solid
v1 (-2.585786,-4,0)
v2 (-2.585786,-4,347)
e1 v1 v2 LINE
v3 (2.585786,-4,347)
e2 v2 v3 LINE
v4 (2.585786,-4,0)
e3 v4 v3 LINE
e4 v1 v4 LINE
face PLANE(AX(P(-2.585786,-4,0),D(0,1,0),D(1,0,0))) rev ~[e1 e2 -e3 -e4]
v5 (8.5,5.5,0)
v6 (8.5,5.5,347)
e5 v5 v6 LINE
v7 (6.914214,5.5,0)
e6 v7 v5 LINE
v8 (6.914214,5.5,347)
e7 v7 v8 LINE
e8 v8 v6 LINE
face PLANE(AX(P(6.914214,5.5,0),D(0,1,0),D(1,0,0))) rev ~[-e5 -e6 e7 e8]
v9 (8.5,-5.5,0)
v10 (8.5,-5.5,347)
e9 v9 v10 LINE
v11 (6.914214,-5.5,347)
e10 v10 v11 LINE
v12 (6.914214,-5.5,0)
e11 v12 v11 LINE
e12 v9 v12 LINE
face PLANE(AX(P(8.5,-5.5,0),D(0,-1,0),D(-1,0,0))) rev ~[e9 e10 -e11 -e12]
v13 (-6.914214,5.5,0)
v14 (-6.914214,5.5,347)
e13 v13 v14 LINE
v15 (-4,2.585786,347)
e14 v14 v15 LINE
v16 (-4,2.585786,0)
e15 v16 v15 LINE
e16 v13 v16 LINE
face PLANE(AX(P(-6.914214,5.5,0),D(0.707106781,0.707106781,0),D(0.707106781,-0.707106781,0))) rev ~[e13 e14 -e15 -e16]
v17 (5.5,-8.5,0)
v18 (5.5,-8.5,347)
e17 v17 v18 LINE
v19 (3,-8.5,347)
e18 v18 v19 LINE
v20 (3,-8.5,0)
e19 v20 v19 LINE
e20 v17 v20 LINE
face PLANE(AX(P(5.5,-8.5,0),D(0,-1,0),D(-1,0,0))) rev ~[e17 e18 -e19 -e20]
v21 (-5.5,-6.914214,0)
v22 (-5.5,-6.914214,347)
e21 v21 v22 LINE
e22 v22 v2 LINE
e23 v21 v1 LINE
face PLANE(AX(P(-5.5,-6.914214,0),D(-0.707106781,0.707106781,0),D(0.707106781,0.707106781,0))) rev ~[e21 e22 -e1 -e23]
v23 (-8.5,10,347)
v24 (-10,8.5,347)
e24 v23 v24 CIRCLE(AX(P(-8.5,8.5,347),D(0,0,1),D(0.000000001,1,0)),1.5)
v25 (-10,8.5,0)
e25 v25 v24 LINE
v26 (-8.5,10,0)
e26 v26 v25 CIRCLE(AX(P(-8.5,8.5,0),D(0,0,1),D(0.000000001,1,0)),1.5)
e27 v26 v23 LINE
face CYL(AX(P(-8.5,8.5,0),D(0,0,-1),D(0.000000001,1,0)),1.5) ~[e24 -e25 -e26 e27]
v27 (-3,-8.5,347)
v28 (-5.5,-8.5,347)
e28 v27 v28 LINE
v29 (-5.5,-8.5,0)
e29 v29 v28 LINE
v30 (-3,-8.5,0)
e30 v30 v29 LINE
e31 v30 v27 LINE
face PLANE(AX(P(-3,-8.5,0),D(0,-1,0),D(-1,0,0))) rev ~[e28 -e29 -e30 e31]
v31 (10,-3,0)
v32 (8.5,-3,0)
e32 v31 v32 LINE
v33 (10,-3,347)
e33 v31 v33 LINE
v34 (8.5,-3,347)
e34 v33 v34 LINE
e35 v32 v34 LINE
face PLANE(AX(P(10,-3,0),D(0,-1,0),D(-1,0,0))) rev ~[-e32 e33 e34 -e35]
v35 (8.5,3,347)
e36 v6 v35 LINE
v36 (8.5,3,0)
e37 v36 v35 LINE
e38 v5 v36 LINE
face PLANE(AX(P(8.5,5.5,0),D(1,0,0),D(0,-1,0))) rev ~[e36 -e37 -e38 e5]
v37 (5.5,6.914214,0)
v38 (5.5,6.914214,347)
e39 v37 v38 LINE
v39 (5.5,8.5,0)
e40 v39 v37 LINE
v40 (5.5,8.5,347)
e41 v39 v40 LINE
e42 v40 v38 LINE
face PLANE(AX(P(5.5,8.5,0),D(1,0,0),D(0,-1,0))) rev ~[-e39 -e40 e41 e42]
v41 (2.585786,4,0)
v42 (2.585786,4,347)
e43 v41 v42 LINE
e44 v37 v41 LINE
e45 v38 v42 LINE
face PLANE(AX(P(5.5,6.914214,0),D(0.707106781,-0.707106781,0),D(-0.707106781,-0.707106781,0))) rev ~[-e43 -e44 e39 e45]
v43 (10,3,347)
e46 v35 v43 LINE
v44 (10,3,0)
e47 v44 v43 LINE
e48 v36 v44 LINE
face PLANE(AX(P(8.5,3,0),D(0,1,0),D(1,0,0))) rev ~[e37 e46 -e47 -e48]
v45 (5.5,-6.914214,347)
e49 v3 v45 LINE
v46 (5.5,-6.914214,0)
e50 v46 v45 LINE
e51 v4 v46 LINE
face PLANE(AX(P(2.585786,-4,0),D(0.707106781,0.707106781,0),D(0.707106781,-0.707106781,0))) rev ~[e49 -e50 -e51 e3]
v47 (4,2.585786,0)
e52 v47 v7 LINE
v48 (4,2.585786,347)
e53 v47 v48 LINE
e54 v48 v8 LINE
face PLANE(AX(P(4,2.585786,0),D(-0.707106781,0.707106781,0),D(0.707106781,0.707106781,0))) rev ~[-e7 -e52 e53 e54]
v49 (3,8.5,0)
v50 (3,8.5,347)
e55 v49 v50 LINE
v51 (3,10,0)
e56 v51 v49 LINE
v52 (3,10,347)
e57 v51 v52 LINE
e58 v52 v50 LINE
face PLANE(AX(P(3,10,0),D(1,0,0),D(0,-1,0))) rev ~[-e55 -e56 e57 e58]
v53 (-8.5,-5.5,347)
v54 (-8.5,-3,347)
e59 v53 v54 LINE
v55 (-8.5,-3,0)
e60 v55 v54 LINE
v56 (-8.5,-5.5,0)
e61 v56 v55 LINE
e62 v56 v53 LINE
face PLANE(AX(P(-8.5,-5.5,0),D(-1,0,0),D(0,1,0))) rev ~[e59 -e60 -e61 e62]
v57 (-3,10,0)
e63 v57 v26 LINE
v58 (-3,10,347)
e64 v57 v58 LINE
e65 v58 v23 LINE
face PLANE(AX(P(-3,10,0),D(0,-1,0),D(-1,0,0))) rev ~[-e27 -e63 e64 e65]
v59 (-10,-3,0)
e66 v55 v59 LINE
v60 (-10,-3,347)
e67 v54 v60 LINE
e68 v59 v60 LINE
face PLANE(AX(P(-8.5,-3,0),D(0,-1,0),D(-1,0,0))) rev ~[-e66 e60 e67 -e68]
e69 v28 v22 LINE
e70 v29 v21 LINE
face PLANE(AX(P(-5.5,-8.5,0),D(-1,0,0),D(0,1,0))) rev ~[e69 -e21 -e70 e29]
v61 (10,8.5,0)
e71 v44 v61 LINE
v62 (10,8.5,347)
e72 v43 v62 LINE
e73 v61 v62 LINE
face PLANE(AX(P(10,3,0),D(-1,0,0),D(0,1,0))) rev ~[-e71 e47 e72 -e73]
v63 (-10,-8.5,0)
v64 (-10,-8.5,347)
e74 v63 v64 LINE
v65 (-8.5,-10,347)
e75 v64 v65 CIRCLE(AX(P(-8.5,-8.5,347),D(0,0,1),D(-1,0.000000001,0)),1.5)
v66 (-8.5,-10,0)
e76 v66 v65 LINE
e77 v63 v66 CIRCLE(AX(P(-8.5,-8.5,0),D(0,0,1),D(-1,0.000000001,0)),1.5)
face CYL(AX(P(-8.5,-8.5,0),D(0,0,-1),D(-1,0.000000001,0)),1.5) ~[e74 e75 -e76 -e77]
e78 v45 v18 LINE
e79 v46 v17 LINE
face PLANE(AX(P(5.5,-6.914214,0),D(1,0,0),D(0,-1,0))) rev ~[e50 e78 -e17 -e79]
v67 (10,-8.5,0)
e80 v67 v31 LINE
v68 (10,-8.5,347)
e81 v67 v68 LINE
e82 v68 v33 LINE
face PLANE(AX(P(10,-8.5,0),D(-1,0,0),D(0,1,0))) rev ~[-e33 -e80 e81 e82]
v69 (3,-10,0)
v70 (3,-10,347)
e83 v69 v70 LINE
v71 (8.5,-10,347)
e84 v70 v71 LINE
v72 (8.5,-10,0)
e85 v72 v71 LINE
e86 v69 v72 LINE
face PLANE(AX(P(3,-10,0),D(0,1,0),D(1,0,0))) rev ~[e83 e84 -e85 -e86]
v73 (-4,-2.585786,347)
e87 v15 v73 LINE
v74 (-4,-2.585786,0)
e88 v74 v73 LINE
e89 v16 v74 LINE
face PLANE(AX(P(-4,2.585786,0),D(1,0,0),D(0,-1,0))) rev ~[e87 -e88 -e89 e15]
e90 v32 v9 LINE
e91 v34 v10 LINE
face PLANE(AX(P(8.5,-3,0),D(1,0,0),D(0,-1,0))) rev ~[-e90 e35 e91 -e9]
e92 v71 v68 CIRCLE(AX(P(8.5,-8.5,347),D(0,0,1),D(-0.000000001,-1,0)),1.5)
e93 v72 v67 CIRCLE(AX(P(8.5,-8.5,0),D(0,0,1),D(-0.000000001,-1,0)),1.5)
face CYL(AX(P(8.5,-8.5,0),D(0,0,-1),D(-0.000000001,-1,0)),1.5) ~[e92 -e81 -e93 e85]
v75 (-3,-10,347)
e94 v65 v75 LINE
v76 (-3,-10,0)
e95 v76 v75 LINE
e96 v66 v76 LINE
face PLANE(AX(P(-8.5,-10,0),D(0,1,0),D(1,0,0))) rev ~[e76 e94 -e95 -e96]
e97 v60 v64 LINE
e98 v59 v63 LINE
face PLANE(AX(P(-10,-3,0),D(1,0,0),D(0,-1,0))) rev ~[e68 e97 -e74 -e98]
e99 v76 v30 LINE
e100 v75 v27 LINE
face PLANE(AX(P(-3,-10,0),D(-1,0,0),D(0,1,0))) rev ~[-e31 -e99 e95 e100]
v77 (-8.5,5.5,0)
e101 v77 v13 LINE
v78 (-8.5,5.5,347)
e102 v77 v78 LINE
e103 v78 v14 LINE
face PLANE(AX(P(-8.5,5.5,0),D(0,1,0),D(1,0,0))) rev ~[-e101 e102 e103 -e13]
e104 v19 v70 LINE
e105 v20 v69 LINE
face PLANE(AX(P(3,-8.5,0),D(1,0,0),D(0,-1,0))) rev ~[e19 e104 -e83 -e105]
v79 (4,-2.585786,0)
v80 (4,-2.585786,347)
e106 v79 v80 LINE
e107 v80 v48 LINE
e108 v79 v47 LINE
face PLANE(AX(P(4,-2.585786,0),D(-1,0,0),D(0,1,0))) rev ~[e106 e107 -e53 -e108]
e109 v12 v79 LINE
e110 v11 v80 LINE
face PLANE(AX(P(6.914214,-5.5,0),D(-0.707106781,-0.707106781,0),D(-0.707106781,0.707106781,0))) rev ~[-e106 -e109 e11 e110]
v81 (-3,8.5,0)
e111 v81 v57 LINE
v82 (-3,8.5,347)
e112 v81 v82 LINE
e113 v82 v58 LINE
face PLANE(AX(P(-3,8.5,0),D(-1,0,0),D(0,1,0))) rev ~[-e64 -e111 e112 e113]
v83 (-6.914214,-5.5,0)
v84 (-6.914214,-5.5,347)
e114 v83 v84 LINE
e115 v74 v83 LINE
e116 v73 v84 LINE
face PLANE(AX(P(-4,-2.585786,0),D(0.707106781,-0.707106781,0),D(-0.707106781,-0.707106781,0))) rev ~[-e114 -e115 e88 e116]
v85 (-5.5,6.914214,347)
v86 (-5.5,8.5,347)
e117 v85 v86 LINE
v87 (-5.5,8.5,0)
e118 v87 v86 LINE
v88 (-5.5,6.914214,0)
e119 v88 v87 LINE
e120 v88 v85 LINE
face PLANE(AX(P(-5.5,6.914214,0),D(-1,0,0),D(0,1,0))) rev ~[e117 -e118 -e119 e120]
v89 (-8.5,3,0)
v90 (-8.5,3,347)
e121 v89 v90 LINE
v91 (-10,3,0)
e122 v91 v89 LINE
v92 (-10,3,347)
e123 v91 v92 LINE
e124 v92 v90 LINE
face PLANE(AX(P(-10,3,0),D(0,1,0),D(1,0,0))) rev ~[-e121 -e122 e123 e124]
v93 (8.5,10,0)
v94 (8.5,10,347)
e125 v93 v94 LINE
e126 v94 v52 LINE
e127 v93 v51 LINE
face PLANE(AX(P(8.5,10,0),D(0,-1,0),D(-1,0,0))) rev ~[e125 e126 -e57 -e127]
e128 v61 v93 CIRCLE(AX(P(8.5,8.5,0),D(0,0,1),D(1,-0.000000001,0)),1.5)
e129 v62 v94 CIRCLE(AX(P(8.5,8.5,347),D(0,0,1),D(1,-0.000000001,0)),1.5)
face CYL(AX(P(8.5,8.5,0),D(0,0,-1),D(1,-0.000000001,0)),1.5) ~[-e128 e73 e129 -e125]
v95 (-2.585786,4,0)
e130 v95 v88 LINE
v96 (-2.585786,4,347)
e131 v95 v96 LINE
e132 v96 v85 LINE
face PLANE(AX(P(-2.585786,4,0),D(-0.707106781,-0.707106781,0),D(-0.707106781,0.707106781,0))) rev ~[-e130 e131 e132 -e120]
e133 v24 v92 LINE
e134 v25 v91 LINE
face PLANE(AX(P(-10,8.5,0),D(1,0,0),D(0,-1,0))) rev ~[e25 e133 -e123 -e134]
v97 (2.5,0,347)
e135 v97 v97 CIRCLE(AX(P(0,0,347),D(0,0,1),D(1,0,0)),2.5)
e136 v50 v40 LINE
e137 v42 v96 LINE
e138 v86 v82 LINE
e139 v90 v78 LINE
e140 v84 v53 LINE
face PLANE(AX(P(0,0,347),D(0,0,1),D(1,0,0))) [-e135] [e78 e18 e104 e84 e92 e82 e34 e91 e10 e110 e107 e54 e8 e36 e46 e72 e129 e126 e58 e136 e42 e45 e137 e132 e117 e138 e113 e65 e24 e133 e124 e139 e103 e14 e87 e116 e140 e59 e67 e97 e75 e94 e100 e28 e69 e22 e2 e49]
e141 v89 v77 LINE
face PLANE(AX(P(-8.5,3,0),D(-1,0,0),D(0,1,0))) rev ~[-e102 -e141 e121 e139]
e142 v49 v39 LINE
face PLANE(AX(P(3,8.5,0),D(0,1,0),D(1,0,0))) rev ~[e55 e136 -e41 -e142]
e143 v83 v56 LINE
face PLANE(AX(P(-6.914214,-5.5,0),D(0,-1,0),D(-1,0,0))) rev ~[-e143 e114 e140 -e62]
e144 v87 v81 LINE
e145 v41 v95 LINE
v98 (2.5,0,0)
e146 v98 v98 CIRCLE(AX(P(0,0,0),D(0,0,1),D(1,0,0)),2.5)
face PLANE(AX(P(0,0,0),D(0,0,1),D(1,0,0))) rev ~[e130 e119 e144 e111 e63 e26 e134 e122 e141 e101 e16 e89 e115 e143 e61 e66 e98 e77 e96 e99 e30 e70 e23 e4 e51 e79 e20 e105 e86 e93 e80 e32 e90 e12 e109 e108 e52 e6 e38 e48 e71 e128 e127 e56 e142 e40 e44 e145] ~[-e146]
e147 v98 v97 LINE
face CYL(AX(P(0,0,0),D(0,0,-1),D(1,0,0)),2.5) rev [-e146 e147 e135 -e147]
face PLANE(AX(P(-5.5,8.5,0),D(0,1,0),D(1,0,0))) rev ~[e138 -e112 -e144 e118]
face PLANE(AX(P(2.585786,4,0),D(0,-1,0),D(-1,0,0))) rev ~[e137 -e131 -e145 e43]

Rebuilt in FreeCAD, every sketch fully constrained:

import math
import FreeCAD as App
import Part
import Sketcher

V = App.Vector

doc = App.newDocument("Part")
params = doc.addObject("Spreadsheet::Sheet", "Params")
for row, (alias, value) in enumerate([
    ("sketch1_diameter", "5 mm"),
    ("sketch1_radius", "1.5 mm"),
    ("sketch1_width", "2.5 mm"),
    ("sketch1_width2", "5.5 mm"),
    ("pad1_length", "347 mm"),
], start=1):
    params.set(f"A{row}", alias)
    params.set(f"B{row}", "=" + value)
    params.setAlias(f"B{row}", alias)

body = doc.addObject("PartDesign::Body", "Body")

# Sketch on XY plane
sketch1 = doc.addObject("Sketcher::SketchObject", "Sketch")
body.addObject(sketch1)
sketch1.AttachmentSupport = (doc.XY_Plane, [""])
sketch1.MapMode = "FlatFace"
sketch1.addGeometry([
    Part.LineSegment(V(-2.585786, 4, 0), V(-5.5, 6.914214, 0)),  # 0
    Part.LineSegment(V(-5.5, 6.914214, 0), V(-5.5, 8.5, 0)),  # 1
    Part.LineSegment(V(-5.5, 8.5, 0), V(-3, 8.5, 0)),  # 2
    Part.LineSegment(V(-3, 8.5, 0), V(-3, 10, 0)),  # 3
    Part.LineSegment(V(-3, 10, 0), V(-8.5, 10, 0)),  # 4
    Part.ArcOfCircle(Part.Circle(V(-8.5, 8.5, 0), V(0, 0, 1), 1.5), math.radians(90), math.radians(180)),  # 5
    Part.LineSegment(V(-10, 8.5, 0), V(-10, 3, 0)),  # 6
    Part.LineSegment(V(-10, 3, 0), V(-8.5, 3, 0)),  # 7
    Part.LineSegment(V(-8.5, 3, 0), V(-8.5, 5.5, 0)),  # 8
    Part.LineSegment(V(-8.5, 5.5, 0), V(-6.914214, 5.5, 0)),  # 9
    Part.LineSegment(V(-6.914214, 5.5, 0), V(-4, 2.585786, 0)),  # 10
    Part.LineSegment(V(-4, 2.585786, 0), V(-4, -2.585786, 0)),  # 11
    Part.LineSegment(V(-4, -2.585786, 0), V(-6.914214, -5.5, 0)),  # 12
    Part.LineSegment(V(-6.914214, -5.5, 0), V(-8.5, -5.5, 0)),  # 13
    Part.LineSegment(V(-8.5, -5.5, 0), V(-8.5, -3, 0)),  # 14
    Part.LineSegment(V(-8.5, -3, 0), V(-10, -3, 0)),  # 15
    Part.LineSegment(V(-10, -3, 0), V(-10, -8.5, 0)),  # 16
    Part.ArcOfCircle(Part.Circle(V(-8.5, -8.5, 0), V(0, 0, 1), 1.5), math.radians(180), math.radians(270)),  # 17
    Part.LineSegment(V(-8.5, -10, 0), V(-3, -10, 0)),  # 18
    Part.LineSegment(V(-3, -10, 0), V(-3, -8.5, 0)),  # 19
    Part.LineSegment(V(-3, -8.5, 0), V(-5.5, -8.5, 0)),  # 20
    Part.LineSegment(V(-5.5, -8.5, 0), V(-5.5, -6.914214, 0)),  # 21
    Part.LineSegment(V(-5.5, -6.914214, 0), V(-2.585786, -4, 0)),  # 22
    Part.LineSegment(V(-2.585786, -4, 0), V(2.585786, -4, 0)),  # 23
    Part.LineSegment(V(2.585786, -4, 0), V(5.5, -6.914214, 0)),  # 24
    Part.LineSegment(V(5.5, -6.914214, 0), V(5.5, -8.5, 0)),  # 25
    Part.LineSegment(V(5.5, -8.5, 0), V(3, -8.5, 0)),  # 26
    Part.LineSegment(V(3, -8.5, 0), V(3, -10, 0)),  # 27
    Part.LineSegment(V(3, -10, 0), V(8.5, -10, 0)),  # 28
    Part.ArcOfCircle(Part.Circle(V(8.5, -8.5, 0), V(0, 0, 1), 1.5), math.radians(-90), math.radians(0)),  # 29
    Part.LineSegment(V(10, -8.5, 0), V(10, -3, 0)),  # 30
    Part.LineSegment(V(10, -3, 0), V(8.5, -3, 0)),  # 31
    Part.LineSegment(V(8.5, -3, 0), V(8.5, -5.5, 0)),  # 32
    Part.LineSegment(V(8.5, -5.5, 0), V(6.914214, -5.5, 0)),  # 33
    Part.LineSegment(V(6.914214, -5.5, 0), V(4, -2.585786, 0)),  # 34
    Part.LineSegment(V(4, -2.585786, 0), V(4, 2.585786, 0)),  # 35
    Part.LineSegment(V(4, 2.585786, 0), V(6.914214, 5.5, 0)),  # 36
    Part.LineSegment(V(6.914214, 5.5, 0), V(8.5, 5.5, 0)),  # 37
    Part.LineSegment(V(8.5, 5.5, 0), V(8.5, 3, 0)),  # 38
    Part.LineSegment(V(8.5, 3, 0), V(10, 3, 0)),  # 39
    Part.LineSegment(V(10, 3, 0), V(10, 8.5, 0)),  # 40
    Part.ArcOfCircle(Part.Circle(V(8.5, 8.5, 0), V(0, 0, 1), 1.5), math.radians(0), math.radians(90)),  # 41
    Part.LineSegment(V(8.5, 10, 0), V(3, 10, 0)),  # 42
    Part.LineSegment(V(3, 10, 0), V(3, 8.5, 0)),  # 43
    Part.LineSegment(V(3, 8.5, 0), V(5.5, 8.5, 0)),  # 44
    Part.LineSegment(V(5.5, 8.5, 0), V(5.5, 6.914214, 0)),  # 45
    Part.LineSegment(V(5.5, 6.914214, 0), V(2.585786, 4, 0)),  # 46
    Part.LineSegment(V(2.585786, 4, 0), V(-2.585786, 4, 0)),  # 47
    Part.Circle(V(0, 0, 0), V(0, 0, 1), 2.5),  # 48
], False)
sketch1.addConstraint([
    Sketcher.Constraint("Coincident", 0, 2, 1, 1),
    Sketcher.Constraint("Coincident", 1, 2, 2, 1),
    Sketcher.Constraint("Coincident", 2, 2, 3, 1),
    Sketcher.Constraint("Coincident", 3, 2, 4, 1),
    Sketcher.Constraint("Tangent", 4, 2, 5, 1),
    Sketcher.Constraint("Tangent", 5, 2, 6, 1),
    Sketcher.Constraint("Coincident", 6, 2, 7, 1),
    Sketcher.Constraint("Coincident", 7, 2, 8, 1),
    Sketcher.Constraint("Coincident", 8, 2, 9, 1),
    Sketcher.Constraint("Coincident", 9, 2, 10, 1),
    Sketcher.Constraint("Coincident", 10, 2, 11, 1),
    Sketcher.Constraint("Coincident", 11, 2, 12, 1),
    Sketcher.Constraint("Coincident", 12, 2, 13, 1),
    Sketcher.Constraint("Coincident", 13, 2, 14, 1),
    Sketcher.Constraint("Coincident", 14, 2, 15, 1),
    Sketcher.Constraint("Coincident", 15, 2, 16, 1),
    Sketcher.Constraint("Tangent", 16, 2, 17, 1),
    Sketcher.Constraint("Tangent", 17, 2, 18, 1),
    Sketcher.Constraint("Coincident", 18, 2, 19, 1),
    Sketcher.Constraint("Coincident", 19, 2, 20, 1),
    Sketcher.Constraint("Coincident", 20, 2, 21, 1),
    Sketcher.Constraint("Coincident", 21, 2, 22, 1),
    Sketcher.Constraint("Coincident", 22, 2, 23, 1),
    Sketcher.Constraint("Coincident", 23, 2, 24, 1),
    Sketcher.Constraint("Coincident", 24, 2, 25, 1),
    Sketcher.Constraint("Coincident", 25, 2, 26, 1),
    Sketcher.Constraint("Coincident", 26, 2, 27, 1),
    Sketcher.Constraint("Coincident", 27, 2, 28, 1),
    Sketcher.Constraint("Tangent", 28, 2, 29, 1),
    Sketcher.Constraint("Tangent", 29, 2, 30, 1),
    Sketcher.Constraint("Coincident", 30, 2, 31, 1),
    Sketcher.Constraint("Coincident", 31, 2, 32, 1),
    Sketcher.Constraint("Coincident", 32, 2, 33, 1),
    Sketcher.Constraint("Coincident", 33, 2, 34, 1),
    Sketcher.Constraint("Coincident", 34, 2, 35, 1),
    Sketcher.Constraint("Coincident", 35, 2, 36, 1),
    Sketcher.Constraint("Coincident", 36, 2, 37, 1),
    Sketcher.Constraint("Coincident", 37, 2, 38, 1),
    Sketcher.Constraint("Coincident", 38, 2, 39, 1),
    Sketcher.Constraint("Coincident", 39, 2, 40, 1),
    Sketcher.Constraint("Tangent", 40, 2, 41, 1),
    Sketcher.Constraint("Tangent", 41, 2, 42, 1),
    Sketcher.Constraint("Coincident", 42, 2, 43, 1),
    Sketcher.Constraint("Coincident", 43, 2, 44, 1),
    Sketcher.Constraint("Coincident", 44, 2, 45, 1),
    Sketcher.Constraint("Coincident", 45, 2, 46, 1),
    Sketcher.Constraint("Coincident", 46, 2, 47, 1),
    Sketcher.Constraint("Coincident", 47, 2, 0, 1),
    Sketcher.Constraint("Vertical", 1),
    Sketcher.Constraint("Horizontal", 2),
    Sketcher.Constraint("Vertical", 3),
    Sketcher.Constraint("Horizontal", 4),
    Sketcher.Constraint("Vertical", 6),
    Sketcher.Constraint("Horizontal", 7),
    Sketcher.Constraint("Vertical", 8),
    Sketcher.Constraint("Horizontal", 9),
    Sketcher.Constraint("Vertical", 11),
    Sketcher.Constraint("Horizontal", 13),
    Sketcher.Constraint("Vertical", 14),
    Sketcher.Constraint("Horizontal", 15),
    Sketcher.Constraint("Vertical", 16),
    Sketcher.Constraint("Horizontal", 18),
    Sketcher.Constraint("Vertical", 19),
    Sketcher.Constraint("Horizontal", 20),
    Sketcher.Constraint("Vertical", 21),
    Sketcher.Constraint("Horizontal", 23),
    Sketcher.Constraint("Vertical", 25),
    Sketcher.Constraint("Horizontal", 26),
    Sketcher.Constraint("Vertical", 27),
    Sketcher.Constraint("Horizontal", 28),
    Sketcher.Constraint("Vertical", 30),
    Sketcher.Constraint("Horizontal", 31),
    Sketcher.Constraint("Vertical", 32),
    Sketcher.Constraint("Horizontal", 33),
    Sketcher.Constraint("Vertical", 35),
    Sketcher.Constraint("Horizontal", 37),
    Sketcher.Constraint("Vertical", 38),
    Sketcher.Constraint("Horizontal", 39),
    Sketcher.Constraint("Vertical", 40),
    Sketcher.Constraint("Horizontal", 42),
    Sketcher.Constraint("Vertical", 43),
    Sketcher.Constraint("Horizontal", 44),
    Sketcher.Constraint("Vertical", 45),
    Sketcher.Constraint("Horizontal", 47),
    Sketcher.Constraint("Coincident", 48, 3, -1, 1),
    Sketcher.Constraint("Equal", 5, 17),
    Sketcher.Constraint("Equal", 17, 29),
    Sketcher.Constraint("Equal", 29, 41),
    Sketcher.Constraint("Symmetric", 5, 3, 29, 3, -1, 1),
    Sketcher.Constraint("Symmetric", 17, 3, 41, 3, -1, 1),
    Sketcher.Constraint("Symmetric", 0, 2, 24, 2, -1, 1),
    Sketcher.Constraint("Symmetric", 2, 2, 26, 2, -1, 1),
    Sketcher.Constraint("Symmetric", 7, 2, 31, 2, -1, 1),
    Sketcher.Constraint("Symmetric", 9, 2, 33, 2, -1, 1),
    Sketcher.Constraint("Symmetric", 10, 2, 34, 2, -1, 1),
    Sketcher.Constraint("Symmetric", 12, 2, 36, 2, -1, 1),
    Sketcher.Constraint("Symmetric", 14, 2, 38, 2, -1, 1),
    Sketcher.Constraint("Symmetric", 19, 2, 43, 2, -1, 1),
    Sketcher.Constraint("Symmetric", 21, 2, 45, 2, -1, 1),
    Sketcher.Constraint("Symmetric", 22, 2, 46, 2, -1, 1),
    Sketcher.Constraint("Symmetric", 17, 3, 29, 3, -2),
    Sketcher.Constraint("Symmetric", 21, 2, 24, 2, -2),
    Sketcher.Constraint("Symmetric", 19, 2, 26, 2, -2),
    Sketcher.Constraint("Symmetric", 14, 2, 31, 2, -2),
    Sketcher.Constraint("Symmetric", 12, 2, 33, 2, -2),
    Sketcher.Constraint("Parallel", 0, 10),
    Sketcher.Constraint("Perpendicular", 10, 12),
    Sketcher.Constraint("Parallel", 12, 22),
    Sketcher.Constraint("Perpendicular", 22, 24),
    Sketcher.Constraint("Perpendicular", 34, 36),
    Sketcher.Constraint("Horizontal", 41, 3, 1, 2),
    Sketcher.Constraint("Horizontal", 11, 2, 34, 2),
    Sketcher.Constraint("Vertical", 4, 2, 7, 2),
    Sketcher.Constraint("Equal", 37, 1),
    Sketcher.Constraint("Equal", 42, 6),
    Sketcher.Constraint("Equal", 44, 8),
    Sketcher.Constraint("Equal", 47, 11),
    Sketcher.Constraint("Equal", 0, 10),
    Sketcher.Constraint("Diameter", 48, 5.0),
    Sketcher.Constraint("Radius", 5, 1.5),
    Sketcher.Constraint("DistanceX", 2, 1, 2, 2, 2.5),
    Sketcher.Constraint("DistanceX", 4, 2, 4, 1, 5.5),
    Sketcher.Constraint("DistanceX", 2, 2, -1, 1, 3.0),
    Sketcher.Constraint("DistanceX", 10, 2, -1, 1, 4.0),
    Sketcher.Constraint("Distance", 0, 4.12132),
])
sketch1.setExpression("Constraints[118]", "Params.sketch1_diameter")
sketch1.setExpression("Constraints[119]", "Params.sketch1_radius")
sketch1.setExpression("Constraints[120]", "Params.sketch1_width")
sketch1.setExpression("Constraints[121]", "Params.sketch1_width2")
pad1 = doc.addObject("PartDesign::Pad", "Pad")
body.addObject(pad1)
pad1.Profile = sketch1
pad1.setExpression("Length", "Params.pad1_length")

doc.recompute()
